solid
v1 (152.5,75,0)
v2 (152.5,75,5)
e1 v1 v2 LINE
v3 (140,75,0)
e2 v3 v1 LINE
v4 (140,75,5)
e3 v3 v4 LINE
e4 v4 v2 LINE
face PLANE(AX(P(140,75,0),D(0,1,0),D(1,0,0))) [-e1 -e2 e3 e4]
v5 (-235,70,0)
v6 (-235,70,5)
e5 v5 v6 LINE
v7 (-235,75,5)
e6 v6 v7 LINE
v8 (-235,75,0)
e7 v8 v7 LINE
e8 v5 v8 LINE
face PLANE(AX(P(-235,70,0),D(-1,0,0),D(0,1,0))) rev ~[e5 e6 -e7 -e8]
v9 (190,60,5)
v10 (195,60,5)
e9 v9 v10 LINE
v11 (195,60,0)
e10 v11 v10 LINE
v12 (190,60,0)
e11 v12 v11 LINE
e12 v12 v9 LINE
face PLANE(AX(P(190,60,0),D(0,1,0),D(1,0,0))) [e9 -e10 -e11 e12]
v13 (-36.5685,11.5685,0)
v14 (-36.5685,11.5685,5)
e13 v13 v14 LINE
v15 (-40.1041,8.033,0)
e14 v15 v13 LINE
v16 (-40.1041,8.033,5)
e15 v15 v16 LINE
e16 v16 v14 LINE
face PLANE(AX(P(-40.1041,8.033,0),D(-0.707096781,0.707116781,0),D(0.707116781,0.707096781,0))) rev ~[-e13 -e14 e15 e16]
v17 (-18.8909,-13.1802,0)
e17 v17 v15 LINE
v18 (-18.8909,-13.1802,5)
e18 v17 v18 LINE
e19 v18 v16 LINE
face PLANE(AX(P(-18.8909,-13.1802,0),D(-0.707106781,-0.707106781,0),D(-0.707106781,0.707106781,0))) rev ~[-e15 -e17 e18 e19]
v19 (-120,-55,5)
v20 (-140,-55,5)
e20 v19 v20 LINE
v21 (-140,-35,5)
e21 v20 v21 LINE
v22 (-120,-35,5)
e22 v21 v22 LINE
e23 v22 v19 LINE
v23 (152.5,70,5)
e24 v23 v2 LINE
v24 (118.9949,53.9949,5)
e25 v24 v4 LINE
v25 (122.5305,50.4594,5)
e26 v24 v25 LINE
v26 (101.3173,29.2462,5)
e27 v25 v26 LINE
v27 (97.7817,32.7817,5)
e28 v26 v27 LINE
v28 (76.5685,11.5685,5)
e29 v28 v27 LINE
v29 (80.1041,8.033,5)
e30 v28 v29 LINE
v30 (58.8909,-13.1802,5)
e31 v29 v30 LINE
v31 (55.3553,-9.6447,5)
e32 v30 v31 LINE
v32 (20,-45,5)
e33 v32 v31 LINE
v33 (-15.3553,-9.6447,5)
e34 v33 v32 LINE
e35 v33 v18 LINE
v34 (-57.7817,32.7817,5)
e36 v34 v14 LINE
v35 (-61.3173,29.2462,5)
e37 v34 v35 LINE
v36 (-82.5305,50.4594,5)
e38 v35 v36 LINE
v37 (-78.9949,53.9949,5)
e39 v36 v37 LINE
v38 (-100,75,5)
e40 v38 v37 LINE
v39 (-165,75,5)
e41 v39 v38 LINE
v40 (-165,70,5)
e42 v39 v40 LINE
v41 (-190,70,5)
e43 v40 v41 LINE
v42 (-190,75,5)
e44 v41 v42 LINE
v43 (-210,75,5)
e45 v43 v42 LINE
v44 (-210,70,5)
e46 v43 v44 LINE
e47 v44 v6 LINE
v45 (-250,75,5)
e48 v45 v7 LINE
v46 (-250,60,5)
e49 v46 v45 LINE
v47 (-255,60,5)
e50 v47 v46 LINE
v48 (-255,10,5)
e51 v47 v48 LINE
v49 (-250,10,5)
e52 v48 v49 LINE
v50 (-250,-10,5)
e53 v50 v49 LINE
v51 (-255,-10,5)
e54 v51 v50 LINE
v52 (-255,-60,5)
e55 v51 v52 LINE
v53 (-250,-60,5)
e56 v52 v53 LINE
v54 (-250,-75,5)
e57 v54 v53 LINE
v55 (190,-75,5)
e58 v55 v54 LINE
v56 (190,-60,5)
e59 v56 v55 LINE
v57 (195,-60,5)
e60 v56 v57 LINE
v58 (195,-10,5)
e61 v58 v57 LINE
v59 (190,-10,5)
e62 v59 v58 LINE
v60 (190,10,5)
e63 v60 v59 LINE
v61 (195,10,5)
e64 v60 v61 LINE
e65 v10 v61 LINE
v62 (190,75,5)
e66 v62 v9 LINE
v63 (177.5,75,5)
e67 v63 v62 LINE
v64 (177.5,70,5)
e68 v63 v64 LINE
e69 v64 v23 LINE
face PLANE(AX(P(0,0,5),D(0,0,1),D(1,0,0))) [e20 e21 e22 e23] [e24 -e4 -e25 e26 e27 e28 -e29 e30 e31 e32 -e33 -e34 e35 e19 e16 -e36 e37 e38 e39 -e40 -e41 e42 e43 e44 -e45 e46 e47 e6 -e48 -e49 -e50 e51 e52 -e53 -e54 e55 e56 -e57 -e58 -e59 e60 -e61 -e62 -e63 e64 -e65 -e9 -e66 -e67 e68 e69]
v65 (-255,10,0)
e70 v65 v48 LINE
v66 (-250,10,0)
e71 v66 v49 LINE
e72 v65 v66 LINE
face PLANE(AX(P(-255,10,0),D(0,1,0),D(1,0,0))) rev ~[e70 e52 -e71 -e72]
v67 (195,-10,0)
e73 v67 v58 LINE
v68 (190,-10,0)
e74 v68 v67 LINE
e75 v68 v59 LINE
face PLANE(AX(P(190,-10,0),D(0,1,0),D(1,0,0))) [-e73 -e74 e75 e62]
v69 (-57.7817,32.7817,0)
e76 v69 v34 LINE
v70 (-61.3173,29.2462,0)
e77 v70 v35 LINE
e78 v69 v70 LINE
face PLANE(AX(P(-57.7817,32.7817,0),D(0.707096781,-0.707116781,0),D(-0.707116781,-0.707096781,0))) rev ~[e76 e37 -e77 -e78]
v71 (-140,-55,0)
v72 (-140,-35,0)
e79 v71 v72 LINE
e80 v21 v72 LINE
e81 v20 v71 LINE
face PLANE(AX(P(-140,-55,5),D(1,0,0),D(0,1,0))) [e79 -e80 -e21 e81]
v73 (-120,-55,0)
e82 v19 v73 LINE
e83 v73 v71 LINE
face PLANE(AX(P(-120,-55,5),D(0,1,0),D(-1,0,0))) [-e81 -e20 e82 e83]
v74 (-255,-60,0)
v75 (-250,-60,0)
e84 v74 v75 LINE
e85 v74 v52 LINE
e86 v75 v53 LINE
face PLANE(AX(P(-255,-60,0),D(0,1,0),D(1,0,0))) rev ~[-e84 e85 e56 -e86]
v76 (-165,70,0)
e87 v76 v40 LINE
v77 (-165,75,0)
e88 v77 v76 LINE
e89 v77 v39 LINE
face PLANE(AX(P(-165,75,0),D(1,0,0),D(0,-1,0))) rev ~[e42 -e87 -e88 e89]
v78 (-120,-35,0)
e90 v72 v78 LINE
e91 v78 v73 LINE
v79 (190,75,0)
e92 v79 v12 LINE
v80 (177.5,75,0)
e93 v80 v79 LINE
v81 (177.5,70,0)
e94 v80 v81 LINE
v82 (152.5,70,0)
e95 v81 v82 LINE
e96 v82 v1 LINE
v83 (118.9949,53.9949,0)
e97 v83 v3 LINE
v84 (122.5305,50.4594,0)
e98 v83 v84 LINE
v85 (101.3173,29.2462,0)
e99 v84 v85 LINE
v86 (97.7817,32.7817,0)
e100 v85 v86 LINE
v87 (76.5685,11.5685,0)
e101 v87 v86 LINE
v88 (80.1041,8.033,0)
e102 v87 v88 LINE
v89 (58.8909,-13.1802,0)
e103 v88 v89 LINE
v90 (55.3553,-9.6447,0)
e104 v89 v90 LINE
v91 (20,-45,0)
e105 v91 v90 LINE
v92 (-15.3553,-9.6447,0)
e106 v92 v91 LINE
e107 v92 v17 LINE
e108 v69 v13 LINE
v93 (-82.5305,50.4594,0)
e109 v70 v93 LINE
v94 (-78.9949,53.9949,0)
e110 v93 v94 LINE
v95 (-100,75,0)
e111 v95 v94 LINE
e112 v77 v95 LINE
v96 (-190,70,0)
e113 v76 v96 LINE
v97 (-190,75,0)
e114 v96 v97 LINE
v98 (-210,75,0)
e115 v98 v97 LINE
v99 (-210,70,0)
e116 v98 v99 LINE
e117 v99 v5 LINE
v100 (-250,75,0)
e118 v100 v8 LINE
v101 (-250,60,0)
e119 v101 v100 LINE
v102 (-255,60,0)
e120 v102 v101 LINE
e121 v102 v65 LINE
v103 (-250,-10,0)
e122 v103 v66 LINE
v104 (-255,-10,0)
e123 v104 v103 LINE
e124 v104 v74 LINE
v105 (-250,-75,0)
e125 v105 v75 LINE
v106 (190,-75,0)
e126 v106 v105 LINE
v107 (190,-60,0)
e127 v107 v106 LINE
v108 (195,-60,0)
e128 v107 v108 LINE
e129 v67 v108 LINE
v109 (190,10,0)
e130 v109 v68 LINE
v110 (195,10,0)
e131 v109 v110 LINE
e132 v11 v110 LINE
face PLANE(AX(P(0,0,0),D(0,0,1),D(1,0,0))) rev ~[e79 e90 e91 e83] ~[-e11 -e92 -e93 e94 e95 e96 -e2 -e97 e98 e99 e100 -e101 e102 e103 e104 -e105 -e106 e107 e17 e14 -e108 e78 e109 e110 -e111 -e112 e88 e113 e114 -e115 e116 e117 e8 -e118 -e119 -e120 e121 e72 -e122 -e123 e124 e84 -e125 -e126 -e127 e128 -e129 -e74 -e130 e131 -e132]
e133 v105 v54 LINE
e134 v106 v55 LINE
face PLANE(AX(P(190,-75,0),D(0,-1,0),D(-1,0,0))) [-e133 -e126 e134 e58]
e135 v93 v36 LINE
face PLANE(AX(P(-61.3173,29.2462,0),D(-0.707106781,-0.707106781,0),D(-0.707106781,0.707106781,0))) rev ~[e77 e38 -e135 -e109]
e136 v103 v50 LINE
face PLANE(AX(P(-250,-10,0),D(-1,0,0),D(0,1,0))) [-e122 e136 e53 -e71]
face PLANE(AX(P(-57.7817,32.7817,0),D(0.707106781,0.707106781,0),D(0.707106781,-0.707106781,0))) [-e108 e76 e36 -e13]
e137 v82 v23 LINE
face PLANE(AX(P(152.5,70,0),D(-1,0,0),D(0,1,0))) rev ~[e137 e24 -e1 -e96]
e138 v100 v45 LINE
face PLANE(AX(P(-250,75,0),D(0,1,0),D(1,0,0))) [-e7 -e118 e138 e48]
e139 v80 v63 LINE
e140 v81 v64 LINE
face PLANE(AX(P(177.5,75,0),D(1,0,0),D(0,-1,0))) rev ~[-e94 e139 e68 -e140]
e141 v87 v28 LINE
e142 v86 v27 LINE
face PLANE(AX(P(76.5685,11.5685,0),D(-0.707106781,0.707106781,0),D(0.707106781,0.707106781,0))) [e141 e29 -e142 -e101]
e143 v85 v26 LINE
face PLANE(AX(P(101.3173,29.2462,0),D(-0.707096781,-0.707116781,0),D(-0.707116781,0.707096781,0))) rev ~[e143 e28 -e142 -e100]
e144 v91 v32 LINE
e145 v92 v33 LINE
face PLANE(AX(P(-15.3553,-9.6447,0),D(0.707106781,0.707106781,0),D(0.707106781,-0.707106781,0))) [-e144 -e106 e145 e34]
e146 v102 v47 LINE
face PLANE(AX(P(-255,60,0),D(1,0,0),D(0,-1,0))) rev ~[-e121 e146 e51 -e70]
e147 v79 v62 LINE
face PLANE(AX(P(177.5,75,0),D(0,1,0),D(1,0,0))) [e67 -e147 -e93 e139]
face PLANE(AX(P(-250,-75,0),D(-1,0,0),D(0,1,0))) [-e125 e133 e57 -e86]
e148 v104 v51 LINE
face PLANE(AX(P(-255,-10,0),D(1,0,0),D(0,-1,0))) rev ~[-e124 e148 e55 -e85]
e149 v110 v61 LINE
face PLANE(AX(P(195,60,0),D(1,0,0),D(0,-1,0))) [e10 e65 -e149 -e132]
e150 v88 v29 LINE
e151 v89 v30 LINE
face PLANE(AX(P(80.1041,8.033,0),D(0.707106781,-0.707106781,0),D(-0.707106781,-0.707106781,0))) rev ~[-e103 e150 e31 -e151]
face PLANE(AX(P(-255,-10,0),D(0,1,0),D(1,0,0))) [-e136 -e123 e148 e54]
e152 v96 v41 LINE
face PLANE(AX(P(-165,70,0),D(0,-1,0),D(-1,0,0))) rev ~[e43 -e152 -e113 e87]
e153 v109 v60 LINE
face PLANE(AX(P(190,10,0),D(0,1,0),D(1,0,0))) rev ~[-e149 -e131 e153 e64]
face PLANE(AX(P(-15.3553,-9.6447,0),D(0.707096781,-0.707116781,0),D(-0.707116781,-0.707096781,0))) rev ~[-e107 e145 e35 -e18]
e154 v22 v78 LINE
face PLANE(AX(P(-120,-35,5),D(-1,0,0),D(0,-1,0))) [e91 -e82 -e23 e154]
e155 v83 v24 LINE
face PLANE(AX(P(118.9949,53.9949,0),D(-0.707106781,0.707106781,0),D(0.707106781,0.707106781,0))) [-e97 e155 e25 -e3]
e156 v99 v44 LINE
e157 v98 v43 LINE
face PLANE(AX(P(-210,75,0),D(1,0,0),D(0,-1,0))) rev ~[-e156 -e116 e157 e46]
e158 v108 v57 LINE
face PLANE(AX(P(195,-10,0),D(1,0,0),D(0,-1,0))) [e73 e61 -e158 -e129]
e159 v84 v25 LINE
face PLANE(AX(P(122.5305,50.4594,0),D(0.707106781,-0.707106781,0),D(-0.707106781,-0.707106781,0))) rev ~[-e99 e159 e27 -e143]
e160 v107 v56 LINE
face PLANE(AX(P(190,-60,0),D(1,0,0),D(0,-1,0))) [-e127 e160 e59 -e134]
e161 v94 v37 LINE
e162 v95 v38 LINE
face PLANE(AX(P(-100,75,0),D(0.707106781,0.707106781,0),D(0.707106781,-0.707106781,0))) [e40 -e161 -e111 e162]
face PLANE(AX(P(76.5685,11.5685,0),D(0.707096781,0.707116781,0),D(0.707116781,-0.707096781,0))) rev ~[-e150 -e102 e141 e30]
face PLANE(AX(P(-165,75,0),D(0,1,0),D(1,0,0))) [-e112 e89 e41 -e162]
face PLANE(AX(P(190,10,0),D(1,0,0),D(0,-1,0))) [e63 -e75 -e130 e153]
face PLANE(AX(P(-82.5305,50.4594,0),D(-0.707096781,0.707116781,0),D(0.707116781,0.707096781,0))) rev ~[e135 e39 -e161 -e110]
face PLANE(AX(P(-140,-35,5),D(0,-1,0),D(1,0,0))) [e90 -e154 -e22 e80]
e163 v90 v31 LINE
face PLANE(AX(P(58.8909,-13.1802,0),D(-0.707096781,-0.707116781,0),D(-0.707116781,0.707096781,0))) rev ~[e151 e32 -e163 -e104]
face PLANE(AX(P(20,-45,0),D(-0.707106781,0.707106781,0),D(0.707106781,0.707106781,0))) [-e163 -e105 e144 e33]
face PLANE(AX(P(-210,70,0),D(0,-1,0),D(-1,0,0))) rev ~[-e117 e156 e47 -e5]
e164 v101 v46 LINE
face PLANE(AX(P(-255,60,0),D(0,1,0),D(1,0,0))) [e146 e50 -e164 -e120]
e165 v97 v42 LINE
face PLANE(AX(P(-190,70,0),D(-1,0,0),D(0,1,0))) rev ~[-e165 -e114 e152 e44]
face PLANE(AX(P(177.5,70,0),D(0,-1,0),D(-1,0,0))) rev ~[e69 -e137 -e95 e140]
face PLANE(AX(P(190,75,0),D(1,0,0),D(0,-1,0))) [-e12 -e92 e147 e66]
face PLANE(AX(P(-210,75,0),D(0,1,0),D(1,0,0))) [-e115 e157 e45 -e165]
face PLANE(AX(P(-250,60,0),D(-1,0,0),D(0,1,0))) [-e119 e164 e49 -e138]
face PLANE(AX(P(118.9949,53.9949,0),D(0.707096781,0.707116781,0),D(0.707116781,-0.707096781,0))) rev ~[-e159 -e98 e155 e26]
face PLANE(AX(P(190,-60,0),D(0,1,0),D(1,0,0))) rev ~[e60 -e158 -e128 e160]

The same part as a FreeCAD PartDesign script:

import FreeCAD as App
import Part
import Sketcher

V = App.Vector


def add_polygon(sketch, points):
    """Adds a closed chain of lines whose ends are joined by coincident constraints."""
    first, n = sketch.GeometryCount, len(points)
    for a, b in zip(points, points[1:] + points[:1]):
        sketch.addGeometry(Part.LineSegment(App.Vector(*a, 0), App.Vector(*b, 0)), False)
    for i in range(n):
        sketch.addConstraint(Sketcher.Constraint("Coincident", first + i, 2, first + (i + 1) % n, 1))

doc = App.newDocument("Part")
body = doc.addObject("PartDesign::Body", "Body")

sketch1 = body.newObject("Sketcher::SketchObject", "Sketch")
sketch1.AttachmentSupport = (doc.getObject("XY_Plane"), [""])
sketch1.MapMode = "FlatFace"
add_polygon(sketch1, [(-250, -75), (190, -75), (190, -60), (195, -60), (195, -10), (190, -10), (190, 10), (195, 10), (195, 60), (190, 60), (190, 75), (178, 75), (178, 70), (152, 70), (152, 75), (140, 75), (119, 54), (123, 50), (101, 29), (98, 33), (77, 12), (80, 8), (59, -13), (55, -10), (20, -45), (-15, -10), (-19, -13), (-40, 8), (-37, 12), (-58, 33), (-61, 29), (-83, 50), (-79, 54), (-100, 75), (-165, 75), (-165, 70), (-190, 70), (-190, 75), (-210, 75), (-210, 70), (-235, 70), (-235, 75), (-250, 75), (-250, 60), (-255, 60), (-255, 10), (-250, 10), (-250, -10), (-255, -10), (-255, -60), (-250, -60)])
sketch1.addConstraint(Sketcher.Constraint("Horizontal", 0))
sketch1.addConstraint(Sketcher.Constraint("Vertical", 1))
sketch1.addConstraint(Sketcher.Constraint("Horizontal", 2))
sketch1.addConstraint(Sketcher.Constraint("Vertical", 3))
sketch1.addConstraint(Sketcher.Constraint("Horizontal", 4))
sketch1.addConstraint(Sketcher.Constraint("Vertical", 5))
sketch1.addConstraint(Sketcher.Constraint("Horizontal", 6))
sketch1.addConstraint(Sketcher.Constraint("Vertical", 7))
sketch1.addConstraint(Sketcher.Constraint("Horizontal", 8))
sketch1.addConstraint(Sketcher.Constraint("Vertical", 9))
sketch1.addConstraint(Sketcher.Constraint("Horizontal", 10))
sketch1.addConstraint(Sketcher.Constraint("Vertical", 11))
sketch1.addConstraint(Sketcher.Constraint("Horizontal", 12))
sketch1.addConstraint(Sketcher.Constraint("Vertical", 13))
sketch1.addConstraint(Sketcher.Constraint("Horizontal", 14))
sketch1.addConstraint(Sketcher.Constraint("Horizontal", 33))
sketch1.addConstraint(Sketcher.Constraint("Vertical", 34))
sketch1.addConstraint(Sketcher.Constraint("Horizontal", 35))
sketch1.addConstraint(Sketcher.Constraint("Vertical", 36))
sketch1.addConstraint(Sketcher.Constraint("Horizontal", 37))
sketch1.addConstraint(Sketcher.Constraint("Vertical", 38))
sketch1.addConstraint(Sketcher.Constraint("Horizontal", 39))
sketch1.addConstraint(Sketcher.Constraint("Vertical", 40))
sketch1.addConstraint(Sketcher.Constraint("Horizontal", 41))
sketch1.addConstraint(Sketcher.Constraint("Vertical", 42))
sketch1.addConstraint(Sketcher.Constraint("Horizontal", 43))
sketch1.addConstraint(Sketcher.Constraint("Vertical", 44))
sketch1.addConstraint(Sketcher.Constraint("Horizontal", 45))
sketch1.addConstraint(Sketcher.Constraint("Vertical", 46))
sketch1.addConstraint(Sketcher.Constraint("Horizontal", 47))
sketch1.addConstraint(Sketcher.Constraint("Vertical", 48))
sketch1.addConstraint(Sketcher.Constraint("Horizontal", 49))
sketch1.addConstraint(Sketcher.Constraint("Vertical", 50))
sketch1.addConstraint(Sketcher.Constraint("Symmetric", 0, 2, 36, 2, -1, 1))
sketch1.addConstraint(Sketcher.Constraint("Symmetric", 9, 2, 36, 2, -2))
sketch1.addConstraint(Sketcher.Constraint("Symmetric", 3, 2, 6, 2, -1))
sketch1.addConstraint(Sketcher.Constraint("Symmetric", 44, 2, 47, 2, -1))
sketch1.addConstraint(Sketcher.Constraint("Symmetric", 42, 2, 49, 2, -1))
sketch1.addConstraint(Sketcher.Constraint("Perpendicular", 15, 16))
sketch1.addConstraint(Sketcher.Constraint("Perpendicular", 16, 17))
sketch1.addConstraint(Sketcher.Constraint("Perpendicular", 17, 18))
sketch1.addConstraint(Sketcher.Constraint("Perpendicular", 18, 19))
sketch1.addConstraint(Sketcher.Constraint("Perpendicular", 19, 20))
sketch1.addConstraint(Sketcher.Constraint("Perpendicular", 20, 21))
sketch1.addConstraint(Sketcher.Constraint("Perpendicular", 21, 22))
sketch1.addConstraint(Sketcher.Constraint("Perpendicular", 22, 23))
sketch1.addConstraint(Sketcher.Constraint("Perpendicular", 23, 24))
sketch1.addConstraint(Sketcher.Constraint("Perpendicular", 24, 25))
sketch1.addConstraint(Sketcher.Constraint("Perpendicular", 25, 26))
sketch1.addConstraint(Sketcher.Constraint("Perpendicular", 26, 27))
sketch1.addConstraint(Sketcher.Constraint("Perpendicular", 27, 28))
sketch1.addConstraint(Sketcher.Constraint("Perpendicular", 28, 29))
sketch1.addConstraint(Sketcher.Constraint("Perpendicular", 29, 30))
sketch1.addConstraint(Sketcher.Constraint("Perpendicular", 30, 31))
sketch1.addConstraint(Sketcher.Constraint("Perpendicular", 31, 32))
sketch1.addConstraint(Sketcher.Constraint("Horizontal", 10, 2, 13, 2))
sketch1.addConstraint(Sketcher.Constraint("Horizontal", 22, 2, 24, 2))
sketch1.addConstraint(Sketcher.Constraint("Horizontal", 21, 2, 25, 2))
sketch1.addConstraint(Sketcher.Constraint("Horizontal", 20, 2, 26, 2))
sketch1.addConstraint(Sketcher.Constraint("Horizontal", 19, 2, 27, 2))
sketch1.addConstraint(Sketcher.Constraint("Horizontal", 18, 2, 28, 2))
sketch1.addConstraint(Sketcher.Constraint("Horizontal", 17, 2, 29, 2))
sketch1.addConstraint(Sketcher.Constraint("Horizontal", 16, 2, 30, 2))
sketch1.addConstraint(Sketcher.Constraint("Horizontal", 15, 2, 31, 2))
sketch1.addConstraint(Sketcher.Constraint("Horizontal", 14, 2, 32, 2))
sketch1.addConstraint(Sketcher.Constraint("Horizontal", 12, 2, 34, 2))
sketch1.addConstraint(Sketcher.Constraint("Horizontal", 35, 2, 38, 2))
sketch1.addConstraint(Sketcher.Constraint("Horizontal", 37, 2, 40, 2))
sketch1.addConstraint(Sketcher.Constraint("Horizontal", 8, 2, 42, 2))
sketch1.addConstraint(Sketcher.Constraint("Horizontal", 6, 2, 44, 2))
sketch1.addConstraint(Sketcher.Constraint("Horizontal", 2, 2, 48, 2))
sketch1.addConstraint(Sketcher.Constraint("Vertical", 1, 2, 4, 2))
sketch1.addConstraint(Sketcher.Constraint("Vertical", 42, 2, 45, 2))
sketch1.addConstraint(Sketcher.Constraint("Equal", 10, 14))
sketch1.addConstraint(Sketcher.Constraint("Equal", 12, 35))
sketch1.addConstraint(Sketcher.Constraint("Equal", 35, 39))
sketch1.addConstraint(Sketcher.Constraint("Equal", 8, 43))
sketch1.addConstraint(Sketcher.Constraint("Equal", 41, 1))
sketch1.addConstraint(Sketcher.Constraint("Equal", 37, 5))
sketch1.addConstraint(Sketcher.Constraint("Equal", 49, 11))
sketch1.addConstraint(Sketcher.Constraint("Equal", 16, 18))
sketch1.addConstraint(Sketcher.Constraint("Equal", 17, 19))
sketch1.addConstraint(Sketcher.Constraint("Equal", 18, 20))
sketch1.addConstraint(Sketcher.Constraint("Equal", 19, 21))
sketch1.addConstraint(Sketcher.Constraint("Equal", 20, 22))
sketch1.addConstraint(Sketcher.Constraint("Equal", 23, 24))
sketch1.addConstraint(Sketcher.Constraint("DistanceX", 0, 1, 0, 2, 440.0))
sketch1.addConstraint(Sketcher.Constraint("DistanceX", 2, 1, 2, 2, 5.0))
sketch1.addConstraint(Sketcher.Constraint("DistanceX", 12, 2, 12, 1, 25.0))
sketch1.addConstraint(Sketcher.Constraint("DistanceX", 33, 2, 33, 1, 65.0))
sketch1.addConstraint(Sketcher.Constraint("DistanceX", 37, 2, 37, 1, 20.0))
sketch1.addConstraint(Sketcher.Constraint("DistanceX", 41, 2, 41, 1, 15.0))
sketch1.addConstraint(Sketcher.Constraint("DistanceY", 3, 1, 3, 2, 50.0))
sketch1.addConstraint(Sketcher.Constraint("Distance", 16, 5.0))
sketch1.addConstraint(Sketcher.Constraint("Distance", 17, 30.0))
sketch1.addConstraint(Sketcher.Constraint("Distance", 23, 50.0))
sketch1.addConstraint(Sketcher.Constraint("DistanceX", 10, 2, 10, 1, 12.5))
pad1 = body.newObject("PartDesign::Pad", "Pad")
pad1.Profile = sketch1
pad1.Length = 5

sketch2 = body.newObject("Sketcher::SketchObject", "Sketch001")
sketch2.AttachmentSupport = (doc.getObject("XY_Plane"), [""])
sketch2.MapMode = "FlatFace"
sketch2.AttachmentOffset = App.Placement(V(0, 0, 5), App.Rotation())
add_polygon(sketch2, [(-120, -35), (-140, -35), (-140, -55), (-120, -55)])
sketch2.addConstraint(Sketcher.Constraint("Horizontal", 0))
sketch2.addConstraint(Sketcher.Constraint("Vertical", 1))
sketch2.addConstraint(Sketcher.Constraint("Horizontal", 2))
sketch2.addConstraint(Sketcher.Constraint("Vertical", 3))
sketch2.addConstraint(Sketcher.Constraint("Equal", 2, 1))
sketch2.addConstraint(Sketcher.Constraint("DistanceX", 0, 2, 0, 1, 20.0))
sketch2.addConstraint(Sketcher.Constraint("DistanceX", 0, 2, -1, 1, 140.0))
sketch2.addConstraint(Sketcher.Constraint("DistanceY", 0, 2, -1, 1, 35.0))
pocket1 = body.newObject("PartDesign::Pocket", "Pocket")
pocket1.Profile = sketch2
pocket1.Length = 10

doc.recompute()
